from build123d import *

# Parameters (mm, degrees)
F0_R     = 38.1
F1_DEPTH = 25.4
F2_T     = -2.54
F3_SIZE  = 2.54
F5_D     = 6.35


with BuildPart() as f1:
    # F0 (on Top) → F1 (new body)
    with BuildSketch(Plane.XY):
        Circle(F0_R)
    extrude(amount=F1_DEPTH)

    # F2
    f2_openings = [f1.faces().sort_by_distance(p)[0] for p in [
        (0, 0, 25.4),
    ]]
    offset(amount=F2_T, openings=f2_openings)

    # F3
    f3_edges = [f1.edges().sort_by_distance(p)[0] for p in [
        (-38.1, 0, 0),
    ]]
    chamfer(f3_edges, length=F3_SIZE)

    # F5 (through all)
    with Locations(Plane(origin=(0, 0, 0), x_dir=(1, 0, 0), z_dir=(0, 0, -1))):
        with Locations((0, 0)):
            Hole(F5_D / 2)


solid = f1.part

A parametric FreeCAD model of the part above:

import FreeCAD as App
import Part
import Sketcher
Q = App.Units.Quantity


def edges_at(feature, points):
    """Names of the edges that pass closest to the given points."""
    edges = feature.Shape.Edges
    near = lambda p: min(range(len(edges)), key=lambda i: edges[i].distToShape(Part.Vertex(*p))[0])
    return sorted({f"Edge{near(p) + 1}" for p in points})


def faces_at(feature, points):
    """Names of the faces that lie closest to the given points."""
    faces = feature.Shape.Faces
    near = lambda p: min(range(len(faces)), key=lambda i: faces[i].distToShape(Part.Vertex(*p))[0])
    return sorted({f"Face{near(p) + 1}" for p in points})

doc = App.newDocument("Part")
body = doc.addObject("PartDesign::Body", "Body")

sketch1 = doc.addObject("Sketcher::SketchObject", "Sketch")
body.addObject(sketch1)
sketch1.AttachmentSupport = (doc.XY_Plane, [""])
sketch1.MapMode = "FlatFace"
sketch1.addGeometry(Part.Circle(App.Vector(0, 0, 0), App.Vector(0, 0, 1), 38), False)
sketch1.addConstraint(Sketcher.Constraint("Coincident", 0, 3, -1, 1))
sketch1.addConstraint(Sketcher.Constraint("Diameter", 0, Q("3 in")))
pad1 = doc.addObject("PartDesign::Pad", "Pad")
body.addObject(pad1)
pad1.Profile = sketch1
pad1.Length = Q("1 in")
doc.recompute()

thickness = doc.addObject("PartDesign::Thickness", "Thickness")
body.addObject(thickness)
thickness.Base = (pad1, faces_at(pad1, [(0, 0, 25.4)]))
thickness.Value = Q("0.1 in")
thickness.Reversed = True
thickness.Join = "Arc"
doc.recompute()

chamfer = doc.addObject("PartDesign::Chamfer", "Chamfer")
body.addObject(chamfer)
chamfer.Base = (thickness, edges_at(thickness, [(-38.1, 0, 0)]))
chamfer.Size = Q("0.1 in")

sketch2 = doc.addObject("Sketcher::SketchObject", "Sketch001")
body.addObject(sketch2)
sketch2.AttachmentSupport = (doc.XY_Plane, [""])
sketch2.MapMode = "FlatFace"
sketch2.addGeometry(Part.Circle(App.Vector(0, 0, 0), App.Vector(0, 0, 1), 3.2), False)
sketch2.addConstraint(Sketcher.Constraint("Coincident", 0, 3, -1, 1))
sketch2.addConstraint(Sketcher.Constraint("Diameter", 0, Q("0.25 in")))
doc.recompute()
hole = doc.addObject("PartDesign::Hole", "Hole")
body.addObject(hole)
hole.Profile = sketch2
hole.ThreadType = "None"
hole.Diameter = Q("0.25 in")
hole.DepthType = "ThroughAll"
hole.Reversed = True

doc.recompute()
